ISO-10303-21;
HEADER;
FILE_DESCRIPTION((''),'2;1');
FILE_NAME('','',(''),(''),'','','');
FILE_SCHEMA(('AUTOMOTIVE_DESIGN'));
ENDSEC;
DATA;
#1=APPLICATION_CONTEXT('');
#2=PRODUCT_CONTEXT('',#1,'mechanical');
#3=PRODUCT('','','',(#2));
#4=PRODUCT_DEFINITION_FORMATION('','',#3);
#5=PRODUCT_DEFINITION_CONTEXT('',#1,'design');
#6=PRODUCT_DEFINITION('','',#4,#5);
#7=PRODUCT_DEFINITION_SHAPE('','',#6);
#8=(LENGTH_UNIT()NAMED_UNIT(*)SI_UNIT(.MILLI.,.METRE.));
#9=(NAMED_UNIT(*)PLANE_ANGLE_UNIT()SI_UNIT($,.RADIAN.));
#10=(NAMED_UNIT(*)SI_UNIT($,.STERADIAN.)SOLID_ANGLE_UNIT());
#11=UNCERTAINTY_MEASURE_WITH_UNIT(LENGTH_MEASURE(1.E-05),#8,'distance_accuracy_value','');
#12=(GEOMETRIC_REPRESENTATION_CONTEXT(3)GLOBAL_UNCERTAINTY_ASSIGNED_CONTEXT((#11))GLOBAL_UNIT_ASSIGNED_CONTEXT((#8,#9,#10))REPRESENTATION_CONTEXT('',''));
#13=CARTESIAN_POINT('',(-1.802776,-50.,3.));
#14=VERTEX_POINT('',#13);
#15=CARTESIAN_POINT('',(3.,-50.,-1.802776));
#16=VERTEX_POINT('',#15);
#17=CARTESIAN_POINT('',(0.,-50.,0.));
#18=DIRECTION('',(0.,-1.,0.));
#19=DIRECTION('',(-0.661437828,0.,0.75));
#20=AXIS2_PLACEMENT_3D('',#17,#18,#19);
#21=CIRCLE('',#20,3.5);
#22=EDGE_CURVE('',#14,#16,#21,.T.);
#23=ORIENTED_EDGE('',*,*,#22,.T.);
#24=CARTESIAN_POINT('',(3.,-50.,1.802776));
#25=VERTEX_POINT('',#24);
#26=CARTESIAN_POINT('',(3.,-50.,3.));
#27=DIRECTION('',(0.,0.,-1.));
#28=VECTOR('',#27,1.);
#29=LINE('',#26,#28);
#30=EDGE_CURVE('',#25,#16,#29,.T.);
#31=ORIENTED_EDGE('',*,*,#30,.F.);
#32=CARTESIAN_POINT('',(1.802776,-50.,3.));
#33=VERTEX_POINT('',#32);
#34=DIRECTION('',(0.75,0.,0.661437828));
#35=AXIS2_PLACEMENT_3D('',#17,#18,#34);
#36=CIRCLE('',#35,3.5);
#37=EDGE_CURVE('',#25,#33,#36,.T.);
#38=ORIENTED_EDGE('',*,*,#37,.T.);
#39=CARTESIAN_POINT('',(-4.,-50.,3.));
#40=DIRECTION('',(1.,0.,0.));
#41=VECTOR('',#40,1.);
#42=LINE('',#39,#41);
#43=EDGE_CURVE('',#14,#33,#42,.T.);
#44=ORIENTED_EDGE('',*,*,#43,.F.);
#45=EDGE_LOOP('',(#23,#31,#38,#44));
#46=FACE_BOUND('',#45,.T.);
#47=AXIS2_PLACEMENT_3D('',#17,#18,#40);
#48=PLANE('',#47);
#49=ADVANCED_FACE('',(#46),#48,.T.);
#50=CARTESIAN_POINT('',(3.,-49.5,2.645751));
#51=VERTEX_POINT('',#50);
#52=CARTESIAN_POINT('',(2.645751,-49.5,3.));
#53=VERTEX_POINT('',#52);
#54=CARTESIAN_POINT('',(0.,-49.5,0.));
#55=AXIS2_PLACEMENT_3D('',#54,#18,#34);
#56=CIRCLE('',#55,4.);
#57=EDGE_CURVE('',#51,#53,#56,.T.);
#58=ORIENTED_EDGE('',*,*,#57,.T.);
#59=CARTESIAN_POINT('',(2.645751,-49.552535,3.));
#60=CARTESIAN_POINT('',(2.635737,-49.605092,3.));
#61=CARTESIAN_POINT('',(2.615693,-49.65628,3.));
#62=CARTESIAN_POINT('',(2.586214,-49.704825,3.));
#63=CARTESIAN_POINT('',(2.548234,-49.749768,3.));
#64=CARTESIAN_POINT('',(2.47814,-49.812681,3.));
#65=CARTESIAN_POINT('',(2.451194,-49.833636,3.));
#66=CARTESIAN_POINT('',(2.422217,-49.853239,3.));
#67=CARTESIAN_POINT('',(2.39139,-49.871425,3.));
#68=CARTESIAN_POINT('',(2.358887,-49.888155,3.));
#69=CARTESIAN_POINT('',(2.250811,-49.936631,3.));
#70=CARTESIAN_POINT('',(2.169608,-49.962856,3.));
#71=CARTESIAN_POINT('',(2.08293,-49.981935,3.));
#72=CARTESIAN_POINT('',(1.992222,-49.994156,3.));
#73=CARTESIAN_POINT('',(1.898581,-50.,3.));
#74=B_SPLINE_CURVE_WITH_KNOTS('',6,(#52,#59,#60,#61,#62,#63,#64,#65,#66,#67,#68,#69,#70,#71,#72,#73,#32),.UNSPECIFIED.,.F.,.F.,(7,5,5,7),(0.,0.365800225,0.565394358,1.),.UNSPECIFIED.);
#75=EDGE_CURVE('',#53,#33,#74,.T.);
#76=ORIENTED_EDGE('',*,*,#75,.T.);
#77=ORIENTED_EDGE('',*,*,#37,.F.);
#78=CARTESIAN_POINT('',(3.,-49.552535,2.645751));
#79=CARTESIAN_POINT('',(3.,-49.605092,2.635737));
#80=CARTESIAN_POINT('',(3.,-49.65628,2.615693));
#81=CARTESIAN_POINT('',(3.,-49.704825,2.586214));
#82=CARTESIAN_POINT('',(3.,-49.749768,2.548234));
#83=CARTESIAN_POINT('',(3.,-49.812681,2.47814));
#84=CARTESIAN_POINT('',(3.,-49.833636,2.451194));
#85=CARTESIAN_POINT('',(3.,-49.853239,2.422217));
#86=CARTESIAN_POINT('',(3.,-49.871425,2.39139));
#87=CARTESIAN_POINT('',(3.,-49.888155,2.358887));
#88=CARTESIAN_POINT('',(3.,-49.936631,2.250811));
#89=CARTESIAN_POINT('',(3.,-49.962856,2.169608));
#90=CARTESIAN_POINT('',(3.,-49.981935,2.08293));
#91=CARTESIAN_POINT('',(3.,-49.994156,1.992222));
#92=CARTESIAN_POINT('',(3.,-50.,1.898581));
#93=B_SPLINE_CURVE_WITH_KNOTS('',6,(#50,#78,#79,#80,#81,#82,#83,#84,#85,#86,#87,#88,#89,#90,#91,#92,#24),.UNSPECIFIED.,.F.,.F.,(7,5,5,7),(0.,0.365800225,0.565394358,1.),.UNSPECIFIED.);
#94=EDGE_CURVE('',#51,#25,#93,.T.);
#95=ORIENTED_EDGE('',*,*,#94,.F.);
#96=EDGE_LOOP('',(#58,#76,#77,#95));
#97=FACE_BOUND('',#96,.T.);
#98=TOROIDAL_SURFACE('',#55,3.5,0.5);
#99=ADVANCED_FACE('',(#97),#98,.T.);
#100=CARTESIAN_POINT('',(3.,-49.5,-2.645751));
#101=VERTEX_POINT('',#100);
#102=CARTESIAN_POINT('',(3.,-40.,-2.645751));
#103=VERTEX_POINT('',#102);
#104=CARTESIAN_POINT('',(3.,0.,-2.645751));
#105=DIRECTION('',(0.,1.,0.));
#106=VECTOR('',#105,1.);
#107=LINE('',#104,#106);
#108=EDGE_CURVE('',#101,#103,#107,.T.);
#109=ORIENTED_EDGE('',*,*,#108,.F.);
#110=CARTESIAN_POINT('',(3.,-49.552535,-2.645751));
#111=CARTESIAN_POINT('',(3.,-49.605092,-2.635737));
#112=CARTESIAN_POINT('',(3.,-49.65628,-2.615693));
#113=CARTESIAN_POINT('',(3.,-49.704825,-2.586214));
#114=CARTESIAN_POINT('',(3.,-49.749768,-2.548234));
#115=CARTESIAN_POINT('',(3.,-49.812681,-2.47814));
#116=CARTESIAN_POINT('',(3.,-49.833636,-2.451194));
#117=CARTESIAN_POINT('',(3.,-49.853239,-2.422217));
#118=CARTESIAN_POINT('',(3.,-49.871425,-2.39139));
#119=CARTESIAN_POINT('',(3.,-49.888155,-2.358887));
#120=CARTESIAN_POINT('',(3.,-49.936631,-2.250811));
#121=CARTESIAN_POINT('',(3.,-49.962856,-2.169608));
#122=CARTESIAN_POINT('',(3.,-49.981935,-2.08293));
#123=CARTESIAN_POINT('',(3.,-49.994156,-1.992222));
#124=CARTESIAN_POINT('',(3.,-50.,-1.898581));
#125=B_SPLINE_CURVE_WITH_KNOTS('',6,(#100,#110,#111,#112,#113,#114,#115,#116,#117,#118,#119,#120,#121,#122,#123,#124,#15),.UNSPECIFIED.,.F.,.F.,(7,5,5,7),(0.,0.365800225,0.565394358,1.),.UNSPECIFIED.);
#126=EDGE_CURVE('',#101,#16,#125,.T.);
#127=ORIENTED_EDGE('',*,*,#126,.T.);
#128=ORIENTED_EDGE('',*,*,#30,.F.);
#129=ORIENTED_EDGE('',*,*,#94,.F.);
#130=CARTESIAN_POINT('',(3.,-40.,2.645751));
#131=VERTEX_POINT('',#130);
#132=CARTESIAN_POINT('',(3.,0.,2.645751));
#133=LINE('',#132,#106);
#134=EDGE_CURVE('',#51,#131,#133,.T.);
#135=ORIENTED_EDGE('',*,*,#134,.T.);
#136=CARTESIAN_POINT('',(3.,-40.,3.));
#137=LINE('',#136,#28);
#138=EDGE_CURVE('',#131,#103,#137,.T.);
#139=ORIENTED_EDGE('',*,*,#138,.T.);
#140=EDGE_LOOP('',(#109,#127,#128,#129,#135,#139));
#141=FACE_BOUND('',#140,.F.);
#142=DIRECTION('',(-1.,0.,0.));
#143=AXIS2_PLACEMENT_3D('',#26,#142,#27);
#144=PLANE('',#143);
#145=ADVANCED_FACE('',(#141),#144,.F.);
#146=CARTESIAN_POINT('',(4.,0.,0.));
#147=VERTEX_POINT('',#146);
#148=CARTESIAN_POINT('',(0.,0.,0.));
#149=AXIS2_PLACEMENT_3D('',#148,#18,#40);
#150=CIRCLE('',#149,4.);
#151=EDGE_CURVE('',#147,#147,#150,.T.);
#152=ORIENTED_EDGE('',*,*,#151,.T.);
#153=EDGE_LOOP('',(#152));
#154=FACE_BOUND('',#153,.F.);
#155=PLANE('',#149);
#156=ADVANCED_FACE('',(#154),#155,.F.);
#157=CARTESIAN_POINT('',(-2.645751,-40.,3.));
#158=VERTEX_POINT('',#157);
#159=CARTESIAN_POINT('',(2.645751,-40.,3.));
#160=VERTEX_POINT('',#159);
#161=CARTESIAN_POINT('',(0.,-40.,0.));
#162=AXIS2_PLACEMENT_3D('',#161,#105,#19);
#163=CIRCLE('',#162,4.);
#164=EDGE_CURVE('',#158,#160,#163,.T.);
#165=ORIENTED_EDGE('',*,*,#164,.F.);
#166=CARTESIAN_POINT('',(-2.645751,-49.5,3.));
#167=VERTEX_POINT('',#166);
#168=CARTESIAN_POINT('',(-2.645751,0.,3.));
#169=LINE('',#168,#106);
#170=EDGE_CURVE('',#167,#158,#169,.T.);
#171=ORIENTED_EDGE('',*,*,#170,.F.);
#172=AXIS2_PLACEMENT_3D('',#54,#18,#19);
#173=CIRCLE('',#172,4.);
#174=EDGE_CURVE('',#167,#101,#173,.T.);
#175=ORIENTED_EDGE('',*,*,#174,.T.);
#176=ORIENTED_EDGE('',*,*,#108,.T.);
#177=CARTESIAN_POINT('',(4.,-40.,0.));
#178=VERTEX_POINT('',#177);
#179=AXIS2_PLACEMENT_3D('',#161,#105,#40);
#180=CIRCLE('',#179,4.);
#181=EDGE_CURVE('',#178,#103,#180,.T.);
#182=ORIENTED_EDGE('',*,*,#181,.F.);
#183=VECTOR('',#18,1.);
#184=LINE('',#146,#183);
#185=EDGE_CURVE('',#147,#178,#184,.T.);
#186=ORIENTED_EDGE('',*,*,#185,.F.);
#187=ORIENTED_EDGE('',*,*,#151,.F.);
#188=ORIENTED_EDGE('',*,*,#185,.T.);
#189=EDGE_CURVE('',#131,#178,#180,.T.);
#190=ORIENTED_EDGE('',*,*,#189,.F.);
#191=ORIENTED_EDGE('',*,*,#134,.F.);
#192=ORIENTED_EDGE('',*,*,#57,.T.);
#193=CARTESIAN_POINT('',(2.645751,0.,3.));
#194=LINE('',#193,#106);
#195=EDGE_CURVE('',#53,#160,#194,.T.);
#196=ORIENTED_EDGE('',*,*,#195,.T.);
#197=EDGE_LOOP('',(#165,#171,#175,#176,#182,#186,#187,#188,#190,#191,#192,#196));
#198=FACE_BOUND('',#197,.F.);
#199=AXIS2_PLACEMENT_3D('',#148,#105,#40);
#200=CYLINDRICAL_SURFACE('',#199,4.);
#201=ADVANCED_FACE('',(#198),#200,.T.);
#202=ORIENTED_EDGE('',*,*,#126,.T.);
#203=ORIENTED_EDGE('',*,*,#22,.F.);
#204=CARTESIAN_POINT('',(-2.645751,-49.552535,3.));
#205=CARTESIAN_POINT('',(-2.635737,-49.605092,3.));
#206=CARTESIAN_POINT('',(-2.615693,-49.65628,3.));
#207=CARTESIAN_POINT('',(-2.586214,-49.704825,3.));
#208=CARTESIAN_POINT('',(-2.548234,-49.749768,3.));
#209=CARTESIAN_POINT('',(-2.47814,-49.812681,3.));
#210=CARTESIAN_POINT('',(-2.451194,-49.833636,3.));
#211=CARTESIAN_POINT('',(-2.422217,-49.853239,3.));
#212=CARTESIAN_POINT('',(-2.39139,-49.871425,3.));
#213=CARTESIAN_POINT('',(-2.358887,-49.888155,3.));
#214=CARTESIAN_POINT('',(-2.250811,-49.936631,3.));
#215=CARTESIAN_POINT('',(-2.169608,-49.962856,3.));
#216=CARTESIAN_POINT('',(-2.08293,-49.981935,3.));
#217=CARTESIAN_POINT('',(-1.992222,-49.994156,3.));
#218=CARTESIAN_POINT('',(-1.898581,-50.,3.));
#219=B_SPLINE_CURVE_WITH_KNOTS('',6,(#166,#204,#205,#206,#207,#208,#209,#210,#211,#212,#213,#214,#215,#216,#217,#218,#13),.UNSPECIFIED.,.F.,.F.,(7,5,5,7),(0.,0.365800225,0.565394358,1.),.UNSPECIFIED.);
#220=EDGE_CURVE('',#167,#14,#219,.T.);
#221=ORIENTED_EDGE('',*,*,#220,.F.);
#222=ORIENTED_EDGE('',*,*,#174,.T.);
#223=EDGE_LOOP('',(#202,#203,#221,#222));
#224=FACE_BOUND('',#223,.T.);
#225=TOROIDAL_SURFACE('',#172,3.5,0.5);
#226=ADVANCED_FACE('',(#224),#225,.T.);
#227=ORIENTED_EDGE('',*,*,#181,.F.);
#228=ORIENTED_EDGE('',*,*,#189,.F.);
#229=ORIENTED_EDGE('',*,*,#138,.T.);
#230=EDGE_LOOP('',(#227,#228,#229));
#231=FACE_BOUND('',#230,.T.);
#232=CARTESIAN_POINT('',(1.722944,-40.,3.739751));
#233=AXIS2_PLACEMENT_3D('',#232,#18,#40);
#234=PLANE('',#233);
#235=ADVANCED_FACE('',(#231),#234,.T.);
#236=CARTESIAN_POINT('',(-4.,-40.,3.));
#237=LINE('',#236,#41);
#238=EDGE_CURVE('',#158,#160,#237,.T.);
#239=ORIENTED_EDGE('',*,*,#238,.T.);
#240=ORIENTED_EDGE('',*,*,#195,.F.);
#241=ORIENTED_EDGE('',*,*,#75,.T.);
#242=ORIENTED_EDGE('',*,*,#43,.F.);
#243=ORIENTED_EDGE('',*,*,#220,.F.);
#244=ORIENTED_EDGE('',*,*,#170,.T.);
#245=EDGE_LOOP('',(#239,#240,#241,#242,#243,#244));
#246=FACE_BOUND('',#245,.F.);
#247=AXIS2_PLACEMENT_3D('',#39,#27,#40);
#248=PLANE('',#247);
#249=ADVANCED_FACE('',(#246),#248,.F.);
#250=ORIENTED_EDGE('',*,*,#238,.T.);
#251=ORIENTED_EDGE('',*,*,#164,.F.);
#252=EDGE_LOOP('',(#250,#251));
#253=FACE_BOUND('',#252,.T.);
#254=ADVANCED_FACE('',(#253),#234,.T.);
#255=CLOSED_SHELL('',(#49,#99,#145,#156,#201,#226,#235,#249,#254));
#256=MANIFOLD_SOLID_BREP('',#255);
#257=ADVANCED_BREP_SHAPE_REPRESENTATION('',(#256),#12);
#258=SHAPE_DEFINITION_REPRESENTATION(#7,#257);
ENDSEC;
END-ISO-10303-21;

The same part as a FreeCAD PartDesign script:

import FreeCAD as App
import Part
import Sketcher

V = App.Vector


def edges_at(feature, points):
    """Names of the edges that pass closest to the given points."""
    edges = feature.Shape.Edges
    near = lambda p: min(range(len(edges)), key=lambda i: edges[i].distToShape(Part.Vertex(*p))[0])
    return sorted({f"Edge{near(p) + 1}" for p in points})


def add_polygon(sketch, points):
    """Adds a closed chain of lines whose ends are joined by coincident constraints."""
    first, n = sketch.GeometryCount, len(points)
    for a, b in zip(points, points[1:] + points[:1]):
        sketch.addGeometry(Part.LineSegment(App.Vector(*a, 0), App.Vector(*b, 0)), False)
    for i in range(n):
        sketch.addConstraint(Sketcher.Constraint("Coincident", first + i, 2, first + (i + 1) % n, 1))

doc = App.newDocument("Part")
params = doc.addObject("Spreadsheet::Sheet", "Params")
for row, (alias, value) in enumerate([
    ("sketch1_diameter", "8 mm"),
    ("pad1_length", "50 mm"),
    ("sketch2_width", "8 mm"),
    ("sketch2_width2", "7 mm"),
    ("pocket1_length", "10 mm"),
    ("fillet_radius", "0.5 mm"),
], start=1):
    params.set(f"A{row}", alias)
    params.set(f"B{row}", "=" + value)
    params.setAlias(f"B{row}", alias)

body = doc.addObject("PartDesign::Body", "Body")

# Sketch on XZ plane
sketch1 = doc.addObject("Sketcher::SketchObject", "Sketch")
body.addObject(sketch1)
sketch1.AttachmentSupport = (doc.XZ_Plane, [""])
sketch1.MapMode = "FlatFace"
sketch1.addGeometry(Part.Circle(V(0, 0, 0), V(0, 0, 1), 4), False)
sketch1.addConstraint(Sketcher.Constraint("Coincident", 0, 3, -1, 1))
sketch1.addConstraint(Sketcher.Constraint("Diameter", 0, 8.0))
sketch1.setExpression("Constraints[1]", "Params.sketch1_diameter")
pad1 = doc.addObject("PartDesign::Pad", "Pad")
body.addObject(pad1)
pad1.Profile = sketch1
pad1.setExpression("Length", "Params.pad1_length")

# Sketch on XZ plane
sketch2 = doc.addObject("Sketcher::SketchObject", "Sketch001")
body.addObject(sketch2)
sketch2.AttachmentSupport = (doc.XZ_Plane, [""])
sketch2.MapMode = "FlatFace"
sketch2.AttachmentOffset = App.Placement(V(0, 0, 50), App.Rotation())
add_polygon(sketch2, [(4, 4), (-4, 4), (-4, 3), (3, 3), (3, -4), (4, -4)])  # lines 0-5
sketch2.addConstraint(Sketcher.Constraint("Horizontal", 0))
sketch2.addConstraint(Sketcher.Constraint("Vertical", 1))
sketch2.addConstraint(Sketcher.Constraint("Horizontal", 2))
sketch2.addConstraint(Sketcher.Constraint("Vertical", 3))
sketch2.addConstraint(Sketcher.Constraint("Horizontal", 4))
sketch2.addConstraint(Sketcher.Constraint("Vertical", 5))
sketch2.addConstraint(Sketcher.Constraint("Symmetric", 0, 2, 4, 2, -1, 1))
sketch2.addConstraint(Sketcher.Constraint("Equal", 4, 1))
sketch2.addConstraint(Sketcher.Constraint("Equal", 2, 3))
sketch2.addConstraint(Sketcher.Constraint("DistanceX", 0, 2, 0, 1, 8.0))
sketch2.addConstraint(Sketcher.Constraint("DistanceX", 2, 1, 2, 2, 7.0))
sketch2.setExpression("Constraints[15]", "Params.sketch2_width")
sketch2.setExpression("Constraints[16]", "Params.sketch2_width2")
pocket1 = doc.addObject("PartDesign::Pocket", "Pocket")
body.addObject(pocket1)
pocket1.Profile = sketch2
pocket1.setExpression("Length", "Params.pocket1_length")
doc.recompute()

fillet = doc.addObject("PartDesign::Fillet", "Fillet")
body.addObject(fillet)
fillet.Base = (pocket1, edges_at(pocket1, [(2.828, -50, 2.828), (-2.828, -50, -2.828)]))
fillet.setExpression("Radius", "Params.fillet_radius")

doc.recompute()
